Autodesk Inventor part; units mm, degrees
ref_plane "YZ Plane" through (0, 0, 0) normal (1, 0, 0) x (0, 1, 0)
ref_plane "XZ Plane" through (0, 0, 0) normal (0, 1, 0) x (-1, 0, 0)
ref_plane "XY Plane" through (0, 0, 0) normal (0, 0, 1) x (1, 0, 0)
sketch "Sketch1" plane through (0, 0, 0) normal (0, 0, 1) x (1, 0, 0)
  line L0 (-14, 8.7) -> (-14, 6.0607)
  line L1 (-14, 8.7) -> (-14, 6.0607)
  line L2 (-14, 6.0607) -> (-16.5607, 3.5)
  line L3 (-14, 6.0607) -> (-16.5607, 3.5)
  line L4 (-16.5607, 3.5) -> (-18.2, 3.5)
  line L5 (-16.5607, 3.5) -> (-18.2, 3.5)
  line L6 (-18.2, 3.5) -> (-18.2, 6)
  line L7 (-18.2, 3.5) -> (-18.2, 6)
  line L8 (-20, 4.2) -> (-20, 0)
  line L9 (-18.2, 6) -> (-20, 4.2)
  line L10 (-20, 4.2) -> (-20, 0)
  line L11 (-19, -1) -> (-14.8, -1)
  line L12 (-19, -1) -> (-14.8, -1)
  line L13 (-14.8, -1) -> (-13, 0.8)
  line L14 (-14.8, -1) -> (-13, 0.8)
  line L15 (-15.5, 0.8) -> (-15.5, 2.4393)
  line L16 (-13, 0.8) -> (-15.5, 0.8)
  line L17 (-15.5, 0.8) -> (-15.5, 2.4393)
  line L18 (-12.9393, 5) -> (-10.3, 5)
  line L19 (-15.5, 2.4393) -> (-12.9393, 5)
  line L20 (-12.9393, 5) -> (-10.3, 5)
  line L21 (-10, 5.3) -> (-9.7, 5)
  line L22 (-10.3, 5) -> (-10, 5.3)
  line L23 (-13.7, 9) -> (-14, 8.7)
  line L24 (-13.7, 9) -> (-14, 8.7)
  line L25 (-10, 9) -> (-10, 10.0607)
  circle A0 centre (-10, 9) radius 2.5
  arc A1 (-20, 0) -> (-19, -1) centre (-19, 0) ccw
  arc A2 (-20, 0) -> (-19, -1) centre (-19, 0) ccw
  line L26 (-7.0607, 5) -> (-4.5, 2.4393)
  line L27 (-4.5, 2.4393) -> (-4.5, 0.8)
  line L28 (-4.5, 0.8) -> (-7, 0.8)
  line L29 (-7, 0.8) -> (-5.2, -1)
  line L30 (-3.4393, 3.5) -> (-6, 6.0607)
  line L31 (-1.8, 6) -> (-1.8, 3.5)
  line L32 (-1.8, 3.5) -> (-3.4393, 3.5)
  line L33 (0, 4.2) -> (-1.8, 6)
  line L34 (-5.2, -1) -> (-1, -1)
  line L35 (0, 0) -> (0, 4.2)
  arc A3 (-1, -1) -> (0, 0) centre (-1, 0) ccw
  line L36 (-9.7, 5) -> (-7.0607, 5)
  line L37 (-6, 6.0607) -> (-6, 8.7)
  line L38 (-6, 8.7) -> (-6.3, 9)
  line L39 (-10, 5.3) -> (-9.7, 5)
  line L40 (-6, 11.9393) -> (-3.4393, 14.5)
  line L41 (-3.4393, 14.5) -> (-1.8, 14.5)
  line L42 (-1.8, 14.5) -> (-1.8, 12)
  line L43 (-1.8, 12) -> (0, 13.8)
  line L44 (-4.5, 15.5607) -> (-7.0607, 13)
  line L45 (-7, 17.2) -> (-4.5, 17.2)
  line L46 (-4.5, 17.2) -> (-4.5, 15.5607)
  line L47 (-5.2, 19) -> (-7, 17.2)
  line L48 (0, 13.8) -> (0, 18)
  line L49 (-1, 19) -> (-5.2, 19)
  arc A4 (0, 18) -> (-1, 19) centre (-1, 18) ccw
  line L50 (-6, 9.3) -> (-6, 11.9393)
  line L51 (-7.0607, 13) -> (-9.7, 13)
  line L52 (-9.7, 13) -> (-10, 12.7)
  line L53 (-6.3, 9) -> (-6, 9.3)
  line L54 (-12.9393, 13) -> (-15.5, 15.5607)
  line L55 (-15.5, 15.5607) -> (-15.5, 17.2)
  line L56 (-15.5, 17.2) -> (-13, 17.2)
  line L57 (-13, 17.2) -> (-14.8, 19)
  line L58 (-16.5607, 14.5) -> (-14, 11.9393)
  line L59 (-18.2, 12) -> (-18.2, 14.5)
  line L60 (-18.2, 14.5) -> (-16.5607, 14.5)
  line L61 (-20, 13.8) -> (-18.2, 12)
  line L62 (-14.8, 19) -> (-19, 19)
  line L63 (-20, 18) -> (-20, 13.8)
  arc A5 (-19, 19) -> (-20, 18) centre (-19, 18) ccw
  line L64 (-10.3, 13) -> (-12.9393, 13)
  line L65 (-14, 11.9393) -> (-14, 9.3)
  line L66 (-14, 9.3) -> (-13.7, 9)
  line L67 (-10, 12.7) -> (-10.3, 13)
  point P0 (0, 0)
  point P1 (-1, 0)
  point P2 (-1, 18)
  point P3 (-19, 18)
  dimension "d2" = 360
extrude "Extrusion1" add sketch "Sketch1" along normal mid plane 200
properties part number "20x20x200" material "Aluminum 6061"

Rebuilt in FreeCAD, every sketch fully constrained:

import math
import FreeCAD as App
import Part
import Sketcher
from FreeCAD import Vector

doc = App.newDocument("Part")
body = doc.addObject("PartDesign::Body", "Body")

sketch1 = body.newObject("Sketcher::SketchObject", "Sketch")
sketch1.AttachmentSupport = (doc.getObject("XY_Plane"), [""])
sketch1.MapMode = "FlatFace"
sketch1.addGeometry([
    Part.LineSegment(Vector(-13.7, 9, 0), Vector(-14, 8.7, 0)),
    Part.LineSegment(Vector(-14, 8.7, 0), Vector(-14, 6.06, 0)),
    Part.LineSegment(Vector(-14, 6.06, 0), Vector(-16.56, 3.5, 0)),
    Part.LineSegment(Vector(-16.56, 3.5, 0), Vector(-18.2, 3.5, 0)),
    Part.LineSegment(Vector(-18.2, 3.5, 0), Vector(-18.2, 6, 0)),
    Part.LineSegment(Vector(-18.2, 6, 0), Vector(-20, 4.2, 0)),
    Part.LineSegment(Vector(-20, 4.2, 0), Vector(-20, 0, 0)),
    Part.ArcOfCircle(Part.Circle(Vector(-19, 0, 0), Vector(0, 0, 1), 1), math.radians(180), math.radians(270)),
    Part.LineSegment(Vector(-19, -1, 0), Vector(-14.8, -1, 0)),
    Part.LineSegment(Vector(-14.8, -1, 0), Vector(-13, 0.8, 0)),
    Part.LineSegment(Vector(-13, 0.8, 0), Vector(-15.5, 0.8, 0)),
    Part.LineSegment(Vector(-15.5, 0.8, 0), Vector(-15.5, 2.44, 0)),
    Part.LineSegment(Vector(-15.5, 2.44, 0), Vector(-12.94, 5, 0)),
    Part.LineSegment(Vector(-12.94, 5, 0), Vector(-10.3, 5, 0)),
    Part.LineSegment(Vector(-10.3, 5, 0), Vector(-10, 5.3, 0)),
    Part.LineSegment(Vector(-10, 5.3, 0), Vector(-9.7, 5, 0)),
    Part.LineSegment(Vector(-9.7, 5, 0), Vector(-7.06, 5, 0)),
    Part.LineSegment(Vector(-7.06, 5, 0), Vector(-4.5, 2.44, 0)),
    Part.LineSegment(Vector(-4.5, 2.44, 0), Vector(-4.5, 0.8, 0)),
    Part.LineSegment(Vector(-4.5, 0.8, 0), Vector(-7, 0.8, 0)),
    Part.LineSegment(Vector(-7, 0.8, 0), Vector(-5.2, -1, 0)),
    Part.LineSegment(Vector(-5.2, -1, 0), Vector(-1, -1, 0)),
    Part.ArcOfCircle(Part.Circle(Vector(-1, 0, 0), Vector(0, 0, 1), 1), math.radians(-90), math.radians(0)),
    Part.LineSegment(Vector(0, 0, 0), Vector(0, 4.2, 0)),
    Part.LineSegment(Vector(0, 4.2, 0), Vector(-1.8, 6, 0)),
    Part.LineSegment(Vector(-1.8, 6, 0), Vector(-1.8, 3.5, 0)),
    Part.LineSegment(Vector(-1.8, 3.5, 0), Vector(-3.44, 3.5, 0)),
    Part.LineSegment(Vector(-3.44, 3.5, 0), Vector(-6, 6.06, 0)),
    Part.LineSegment(Vector(-6, 6.06, 0), Vector(-6, 8.7, 0)),
    Part.LineSegment(Vector(-6, 8.7, 0), Vector(-6.3, 9, 0)),
    Part.LineSegment(Vector(-6.3, 9, 0), Vector(-6, 9.3, 0)),
    Part.LineSegment(Vector(-6, 9.3, 0), Vector(-6, 11.94, 0)),
    Part.LineSegment(Vector(-6, 11.94, 0), Vector(-3.44, 14.5, 0)),
    Part.LineSegment(Vector(-3.44, 14.5, 0), Vector(-1.8, 14.5, 0)),
    Part.LineSegment(Vector(-1.8, 14.5, 0), Vector(-1.8, 12, 0)),
    Part.LineSegment(Vector(-1.8, 12, 0), Vector(0, 13.8, 0)),
    Part.LineSegment(Vector(0, 13.8, 0), Vector(0, 18, 0)),
    Part.ArcOfCircle(Part.Circle(Vector(-1, 18, 0), Vector(0, 0, 1), 1), math.radians(0), math.radians(90)),
    Part.LineSegment(Vector(-1, 19, 0), Vector(-5.2, 19, 0)),
    Part.LineSegment(Vector(-5.2, 19, 0), Vector(-7, 17.2, 0)),
    Part.LineSegment(Vector(-7, 17.2, 0), Vector(-4.5, 17.2, 0)),
    Part.LineSegment(Vector(-4.5, 17.2, 0), Vector(-4.5, 15.56, 0)),
    Part.LineSegment(Vector(-4.5, 15.56, 0), Vector(-7.06, 13, 0)),
    Part.LineSegment(Vector(-7.06, 13, 0), Vector(-9.7, 13, 0)),
    Part.LineSegment(Vector(-9.7, 13, 0), Vector(-10, 12.7, 0)),
    Part.LineSegment(Vector(-10, 12.7, 0), Vector(-10.3, 13, 0)),
    Part.LineSegment(Vector(-10.3, 13, 0), Vector(-12.94, 13, 0)),
    Part.LineSegment(Vector(-12.94, 13, 0), Vector(-15.5, 15.56, 0)),
    Part.LineSegment(Vector(-15.5, 15.56, 0), Vector(-15.5, 17.2, 0)),
    Part.LineSegment(Vector(-15.5, 17.2, 0), Vector(-13, 17.2, 0)),
    Part.LineSegment(Vector(-13, 17.2, 0), Vector(-14.8, 19, 0)),
    Part.LineSegment(Vector(-14.8, 19, 0), Vector(-19, 19, 0)),
    Part.ArcOfCircle(Part.Circle(Vector(-19, 18, 0), Vector(0, 0, 1), 1), math.radians(90), math.radians(180)),
    Part.LineSegment(Vector(-20, 18, 0), Vector(-20, 13.8, 0)),
    Part.LineSegment(Vector(-20, 13.8, 0), Vector(-18.2, 12, 0)),
    Part.LineSegment(Vector(-18.2, 12, 0), Vector(-18.2, 14.5, 0)),
    Part.LineSegment(Vector(-18.2, 14.5, 0), Vector(-16.56, 14.5, 0)),
    Part.LineSegment(Vector(-16.56, 14.5, 0), Vector(-14, 11.94, 0)),
    Part.LineSegment(Vector(-14, 11.94, 0), Vector(-14, 9.3, 0)),
    Part.LineSegment(Vector(-14, 9.3, 0), Vector(-13.7, 9, 0)),
    Part.Circle(Vector(-10, 9, 0), Vector(0, 0, 1), 2.5),
], False)
sketch1.addConstraint([
    Sketcher.Constraint("Coincident", 0, 2, 1, 1),
    Sketcher.Constraint("Coincident", 1, 2, 2, 1),
    Sketcher.Constraint("Coincident", 2, 2, 3, 1),
    Sketcher.Constraint("Coincident", 3, 2, 4, 1),
    Sketcher.Constraint("Coincident", 4, 2, 5, 1),
    Sketcher.Constraint("Coincident", 5, 2, 6, 1),
    Sketcher.Constraint("Tangent", 6, 2, 7, 1),
    Sketcher.Constraint("Tangent", 7, 2, 8, 1),
    Sketcher.Constraint("Coincident", 8, 2, 9, 1),
    Sketcher.Constraint("Coincident", 9, 2, 10, 1),
    Sketcher.Constraint("Coincident", 10, 2, 11, 1),
    Sketcher.Constraint("Coincident", 11, 2, 12, 1),
    Sketcher.Constraint("Coincident", 12, 2, 13, 1),
    Sketcher.Constraint("Coincident", 13, 2, 14, 1),
    Sketcher.Constraint("Coincident", 14, 2, 15, 1),
    Sketcher.Constraint("Coincident", 15, 2, 16, 1),
    Sketcher.Constraint("Coincident", 16, 2, 17, 1),
    Sketcher.Constraint("Coincident", 17, 2, 18, 1),
    Sketcher.Constraint("Coincident", 18, 2, 19, 1),
    Sketcher.Constraint("Coincident", 19, 2, 20, 1),
    Sketcher.Constraint("Coincident", 20, 2, 21, 1),
    Sketcher.Constraint("Tangent", 21, 2, 22, 1),
    Sketcher.Constraint("Tangent", 22, 2, 23, 1),
    Sketcher.Constraint("Coincident", 23, 2, 24, 1),
    Sketcher.Constraint("Coincident", 24, 2, 25, 1),
    Sketcher.Constraint("Coincident", 25, 2, 26, 1),
    Sketcher.Constraint("Coincident", 26, 2, 27, 1),
    Sketcher.Constraint("Coincident", 27, 2, 28, 1),
    Sketcher.Constraint("Coincident", 28, 2, 29, 1),
    Sketcher.Constraint("Coincident", 29, 2, 30, 1),
    Sketcher.Constraint("Coincident", 30, 2, 31, 1),
    Sketcher.Constraint("Coincident", 31, 2, 32, 1),
    Sketcher.Constraint("Coincident", 32, 2, 33, 1),
    Sketcher.Constraint("Coincident", 33, 2, 34, 1),
    Sketcher.Constraint("Coincident", 34, 2, 35, 1),
    Sketcher.Constraint("Coincident", 35, 2, 36, 1),
    Sketcher.Constraint("Tangent", 36, 2, 37, 1),
    Sketcher.Constraint("Tangent", 37, 2, 38, 1),
    Sketcher.Constraint("Coincident", 38, 2, 39, 1),
    Sketcher.Constraint("Coincident", 39, 2, 40, 1),
    Sketcher.Constraint("Coincident", 40, 2, 41, 1),
    Sketcher.Constraint("Coincident", 41, 2, 42, 1),
    Sketcher.Constraint("Coincident", 42, 2, 43, 1),
    Sketcher.Constraint("Coincident", 43, 2, 44, 1),
    Sketcher.Constraint("Coincident", 44, 2, 45, 1),
    Sketcher.Constraint("Coincident", 45, 2, 46, 1),
    Sketcher.Constraint("Coincident", 46, 2, 47, 1),
    Sketcher.Constraint("Coincident", 47, 2, 48, 1),
    Sketcher.Constraint("Coincident", 48, 2, 49, 1),
    Sketcher.Constraint("Coincident", 49, 2, 50, 1),
    Sketcher.Constraint("Coincident", 50, 2, 51, 1),
    Sketcher.Constraint("Tangent", 51, 2, 52, 1),
    Sketcher.Constraint("Tangent", 52, 2, 53, 1),
    Sketcher.Constraint("Coincident", 53, 2, 54, 1),
    Sketcher.Constraint("Coincident", 54, 2, 55, 1),
    Sketcher.Constraint("Coincident", 55, 2, 56, 1),
    Sketcher.Constraint("Coincident", 56, 2, 57, 1),
    Sketcher.Constraint("Coincident", 57, 2, 58, 1),
    Sketcher.Constraint("Coincident", 58, 2, 59, 1),
    Sketcher.Constraint("Coincident", 59, 2, 0, 1),
    Sketcher.Constraint("Vertical", 1),
    Sketcher.Constraint("Horizontal", 3),
    Sketcher.Constraint("Vertical", 4),
    Sketcher.Constraint("Vertical", 6),
    Sketcher.Constraint("Horizontal", 8),
    Sketcher.Constraint("Horizontal", 10),
    Sketcher.Constraint("Vertical", 11),
    Sketcher.Constraint("Horizontal", 13),
    Sketcher.Constraint("Horizontal", 16),
    Sketcher.Constraint("Vertical", 18),
    Sketcher.Constraint("Horizontal", 19),
    Sketcher.Constraint("Horizontal", 21),
    Sketcher.Constraint("Vertical", 23),
    Sketcher.Constraint("Vertical", 25),
    Sketcher.Constraint("Horizontal", 26),
    Sketcher.Constraint("Vertical", 28),
    Sketcher.Constraint("Vertical", 31),
    Sketcher.Constraint("Horizontal", 33),
    Sketcher.Constraint("Vertical", 34),
    Sketcher.Constraint("Vertical", 36),
    Sketcher.Constraint("Horizontal", 38),
    Sketcher.Constraint("Horizontal", 40),
    Sketcher.Constraint("Vertical", 41),
    Sketcher.Constraint("Horizontal", 43),
    Sketcher.Constraint("Horizontal", 46),
    Sketcher.Constraint("Vertical", 48),
    Sketcher.Constraint("Horizontal", 49),
    Sketcher.Constraint("Horizontal", 51),
    Sketcher.Constraint("Vertical", 53),
    Sketcher.Constraint("Vertical", 55),
    Sketcher.Constraint("Horizontal", 56),
    Sketcher.Constraint("Vertical", 58),
    Sketcher.Constraint("Coincident", 22, 2, -1, 1),
    Sketcher.Constraint("Equal", 7, 22),
    Sketcher.Constraint("Equal", 22, 37),
    Sketcher.Constraint("Equal", 37, 52),
    Sketcher.Constraint("PointOnObject", 7, 3, -1),
    Sketcher.Constraint("PointOnObject", 35, 2, -2),
    Sketcher.Constraint("Parallel", 0, 2),
    Sketcher.Constraint("Parallel", 2, 5),
    Sketcher.Constraint("Parallel", 5, 9),
    Sketcher.Constraint("Parallel", 9, 12),
    Sketcher.Constraint("Parallel", 12, 14),
    Sketcher.Constraint("Perpendicular", 14, 15),
    Sketcher.Constraint("Parallel", 15, 17),
    Sketcher.Constraint("Parallel", 17, 20),
    Sketcher.Constraint("Parallel", 20, 24),
    Sketcher.Constraint("Parallel", 24, 27),
    Sketcher.Constraint("Parallel", 27, 29),
    Sketcher.Constraint("Perpendicular", 29, 30),
    Sketcher.Constraint("Parallel", 30, 32),
    Sketcher.Constraint("Parallel", 32, 35),
    Sketcher.Constraint("Parallel", 35, 39),
    Sketcher.Constraint("Parallel", 39, 42),
    Sketcher.Constraint("Parallel", 42, 44),
    Sketcher.Constraint("Perpendicular", 44, 45),
    Sketcher.Constraint("Parallel", 45, 47),
    Sketcher.Constraint("Parallel", 47, 50),
    Sketcher.Constraint("Parallel", 50, 54),
    Sketcher.Constraint("Parallel", 54, 57),
    Sketcher.Constraint("Parallel", 57, 59),
    Sketcher.Constraint("Horizontal", 37, 3, 52, 3),
    Sketcher.Constraint("Horizontal", 13, 2, 15, 2),
    Sketcher.Constraint("Horizontal", 11, 2, 17, 2),
    Sketcher.Constraint("Horizontal", 10, 2, 18, 2),
    Sketcher.Constraint("Horizontal", 5, 2, 23, 2),
    Sketcher.Constraint("Horizontal", 4, 2, 24, 2),
    Sketcher.Constraint("Horizontal", 3, 2, 25, 2),
    Sketcher.Constraint("Horizontal", 1, 2, 27, 2),
    Sketcher.Constraint("Horizontal", 0, 2, 28, 2),
    Sketcher.Constraint("Horizontal", 60, 3, 29, 2),
    Sketcher.Constraint("Horizontal", 43, 2, 45, 2),
    Sketcher.Constraint("Horizontal", 41, 2, 47, 2),
    Sketcher.Constraint("Horizontal", 40, 2, 48, 2),
    Sketcher.Constraint("Horizontal", 35, 2, 53, 2),
    Sketcher.Constraint("Horizontal", 34, 2, 54, 2),
    Sketcher.Constraint("Horizontal", 33, 2, 55, 2),
    Sketcher.Constraint("Horizontal", 31, 2, 57, 2),
    Sketcher.Constraint("Horizontal", 30, 2, 58, 2),
    Sketcher.Constraint("Horizontal", 29, 2, 59, 2),
    Sketcher.Constraint("Vertical", 7, 3, 52, 3),
    Sketcher.Constraint("Vertical", 60, 3, 14, 2),
    Sketcher.Constraint("Vertical", 28, 2, 30, 2),
    Sketcher.Constraint("Vertical", 26, 2, 32, 2),
    Sketcher.Constraint("Vertical", 25, 2, 33, 2),
    Sketcher.Constraint("Vertical", 20, 2, 38, 2),
    Sketcher.Constraint("Vertical", 19, 2, 39, 2),
    Sketcher.Constraint("Vertical", 18, 2, 40, 2),
    Sketcher.Constraint("Vertical", 16, 2, 42, 2),
    Sketcher.Constraint("Vertical", 15, 2, 43, 2),
    Sketcher.Constraint("Vertical", 14, 2, 44, 2),
    Sketcher.Constraint("Vertical", 13, 2, 45, 2),
    Sketcher.Constraint("Vertical", 12, 2, 46, 2),
    Sketcher.Constraint("Vertical", 9, 2, 49, 2),
    Sketcher.Constraint("Equal", 13, 16),
    Sketcher.Constraint("Equal", 10, 19),
    Sketcher.Constraint("Equal", 8, 21),
    Sketcher.Constraint("Equal", 3, 26),
    Sketcher.Constraint("Equal", 46, 1),
    Sketcher.Constraint("Equal", 49, 4),
    Sketcher.Constraint("Equal", 51, 6),
    Sketcher.Constraint("Equal", 56, 11),
    Sketcher.Constraint("Equal", 28, 31),
    Sketcher.Constraint("Equal", 25, 34),
    Sketcher.Constraint("Equal", 23, 36),
    Sketcher.Constraint("Equal", 18, 41),
    Sketcher.Constraint("Equal", 5, 9),
    Sketcher.Constraint("Equal", 2, 12),
    Sketcher.Constraint("Equal", 0, 14),
    Sketcher.Constraint("Diameter", 60, 5.0),
    Sketcher.Constraint("Radius", 7, 1.0),
    Sketcher.Constraint("DistanceX", 8, 1, 8, 2, 4.2),
    Sketcher.Constraint("DistanceX", 10, 2, 10, 1, 2.5),
    Sketcher.Constraint("DistanceX", 7, 3, -1, 1, 19.0),
    Sketcher.Constraint("DistanceX", 0, 2, -1, 1, 14.0),
    Sketcher.Constraint("DistanceY", -1, 1, 4, 2, 6.0),
    Sketcher.Constraint("DistanceY", -1, 1, 0, 2, 8.7),
    Sketcher.Constraint("DistanceX", 3, 2, 3, 1, 1.6393),
])
pad1 = body.newObject("PartDesign::Pad", "Pad")
pad1.Profile = sketch1
pad1.Length = 200
pad1.Midplane = True

doc.recompute()
